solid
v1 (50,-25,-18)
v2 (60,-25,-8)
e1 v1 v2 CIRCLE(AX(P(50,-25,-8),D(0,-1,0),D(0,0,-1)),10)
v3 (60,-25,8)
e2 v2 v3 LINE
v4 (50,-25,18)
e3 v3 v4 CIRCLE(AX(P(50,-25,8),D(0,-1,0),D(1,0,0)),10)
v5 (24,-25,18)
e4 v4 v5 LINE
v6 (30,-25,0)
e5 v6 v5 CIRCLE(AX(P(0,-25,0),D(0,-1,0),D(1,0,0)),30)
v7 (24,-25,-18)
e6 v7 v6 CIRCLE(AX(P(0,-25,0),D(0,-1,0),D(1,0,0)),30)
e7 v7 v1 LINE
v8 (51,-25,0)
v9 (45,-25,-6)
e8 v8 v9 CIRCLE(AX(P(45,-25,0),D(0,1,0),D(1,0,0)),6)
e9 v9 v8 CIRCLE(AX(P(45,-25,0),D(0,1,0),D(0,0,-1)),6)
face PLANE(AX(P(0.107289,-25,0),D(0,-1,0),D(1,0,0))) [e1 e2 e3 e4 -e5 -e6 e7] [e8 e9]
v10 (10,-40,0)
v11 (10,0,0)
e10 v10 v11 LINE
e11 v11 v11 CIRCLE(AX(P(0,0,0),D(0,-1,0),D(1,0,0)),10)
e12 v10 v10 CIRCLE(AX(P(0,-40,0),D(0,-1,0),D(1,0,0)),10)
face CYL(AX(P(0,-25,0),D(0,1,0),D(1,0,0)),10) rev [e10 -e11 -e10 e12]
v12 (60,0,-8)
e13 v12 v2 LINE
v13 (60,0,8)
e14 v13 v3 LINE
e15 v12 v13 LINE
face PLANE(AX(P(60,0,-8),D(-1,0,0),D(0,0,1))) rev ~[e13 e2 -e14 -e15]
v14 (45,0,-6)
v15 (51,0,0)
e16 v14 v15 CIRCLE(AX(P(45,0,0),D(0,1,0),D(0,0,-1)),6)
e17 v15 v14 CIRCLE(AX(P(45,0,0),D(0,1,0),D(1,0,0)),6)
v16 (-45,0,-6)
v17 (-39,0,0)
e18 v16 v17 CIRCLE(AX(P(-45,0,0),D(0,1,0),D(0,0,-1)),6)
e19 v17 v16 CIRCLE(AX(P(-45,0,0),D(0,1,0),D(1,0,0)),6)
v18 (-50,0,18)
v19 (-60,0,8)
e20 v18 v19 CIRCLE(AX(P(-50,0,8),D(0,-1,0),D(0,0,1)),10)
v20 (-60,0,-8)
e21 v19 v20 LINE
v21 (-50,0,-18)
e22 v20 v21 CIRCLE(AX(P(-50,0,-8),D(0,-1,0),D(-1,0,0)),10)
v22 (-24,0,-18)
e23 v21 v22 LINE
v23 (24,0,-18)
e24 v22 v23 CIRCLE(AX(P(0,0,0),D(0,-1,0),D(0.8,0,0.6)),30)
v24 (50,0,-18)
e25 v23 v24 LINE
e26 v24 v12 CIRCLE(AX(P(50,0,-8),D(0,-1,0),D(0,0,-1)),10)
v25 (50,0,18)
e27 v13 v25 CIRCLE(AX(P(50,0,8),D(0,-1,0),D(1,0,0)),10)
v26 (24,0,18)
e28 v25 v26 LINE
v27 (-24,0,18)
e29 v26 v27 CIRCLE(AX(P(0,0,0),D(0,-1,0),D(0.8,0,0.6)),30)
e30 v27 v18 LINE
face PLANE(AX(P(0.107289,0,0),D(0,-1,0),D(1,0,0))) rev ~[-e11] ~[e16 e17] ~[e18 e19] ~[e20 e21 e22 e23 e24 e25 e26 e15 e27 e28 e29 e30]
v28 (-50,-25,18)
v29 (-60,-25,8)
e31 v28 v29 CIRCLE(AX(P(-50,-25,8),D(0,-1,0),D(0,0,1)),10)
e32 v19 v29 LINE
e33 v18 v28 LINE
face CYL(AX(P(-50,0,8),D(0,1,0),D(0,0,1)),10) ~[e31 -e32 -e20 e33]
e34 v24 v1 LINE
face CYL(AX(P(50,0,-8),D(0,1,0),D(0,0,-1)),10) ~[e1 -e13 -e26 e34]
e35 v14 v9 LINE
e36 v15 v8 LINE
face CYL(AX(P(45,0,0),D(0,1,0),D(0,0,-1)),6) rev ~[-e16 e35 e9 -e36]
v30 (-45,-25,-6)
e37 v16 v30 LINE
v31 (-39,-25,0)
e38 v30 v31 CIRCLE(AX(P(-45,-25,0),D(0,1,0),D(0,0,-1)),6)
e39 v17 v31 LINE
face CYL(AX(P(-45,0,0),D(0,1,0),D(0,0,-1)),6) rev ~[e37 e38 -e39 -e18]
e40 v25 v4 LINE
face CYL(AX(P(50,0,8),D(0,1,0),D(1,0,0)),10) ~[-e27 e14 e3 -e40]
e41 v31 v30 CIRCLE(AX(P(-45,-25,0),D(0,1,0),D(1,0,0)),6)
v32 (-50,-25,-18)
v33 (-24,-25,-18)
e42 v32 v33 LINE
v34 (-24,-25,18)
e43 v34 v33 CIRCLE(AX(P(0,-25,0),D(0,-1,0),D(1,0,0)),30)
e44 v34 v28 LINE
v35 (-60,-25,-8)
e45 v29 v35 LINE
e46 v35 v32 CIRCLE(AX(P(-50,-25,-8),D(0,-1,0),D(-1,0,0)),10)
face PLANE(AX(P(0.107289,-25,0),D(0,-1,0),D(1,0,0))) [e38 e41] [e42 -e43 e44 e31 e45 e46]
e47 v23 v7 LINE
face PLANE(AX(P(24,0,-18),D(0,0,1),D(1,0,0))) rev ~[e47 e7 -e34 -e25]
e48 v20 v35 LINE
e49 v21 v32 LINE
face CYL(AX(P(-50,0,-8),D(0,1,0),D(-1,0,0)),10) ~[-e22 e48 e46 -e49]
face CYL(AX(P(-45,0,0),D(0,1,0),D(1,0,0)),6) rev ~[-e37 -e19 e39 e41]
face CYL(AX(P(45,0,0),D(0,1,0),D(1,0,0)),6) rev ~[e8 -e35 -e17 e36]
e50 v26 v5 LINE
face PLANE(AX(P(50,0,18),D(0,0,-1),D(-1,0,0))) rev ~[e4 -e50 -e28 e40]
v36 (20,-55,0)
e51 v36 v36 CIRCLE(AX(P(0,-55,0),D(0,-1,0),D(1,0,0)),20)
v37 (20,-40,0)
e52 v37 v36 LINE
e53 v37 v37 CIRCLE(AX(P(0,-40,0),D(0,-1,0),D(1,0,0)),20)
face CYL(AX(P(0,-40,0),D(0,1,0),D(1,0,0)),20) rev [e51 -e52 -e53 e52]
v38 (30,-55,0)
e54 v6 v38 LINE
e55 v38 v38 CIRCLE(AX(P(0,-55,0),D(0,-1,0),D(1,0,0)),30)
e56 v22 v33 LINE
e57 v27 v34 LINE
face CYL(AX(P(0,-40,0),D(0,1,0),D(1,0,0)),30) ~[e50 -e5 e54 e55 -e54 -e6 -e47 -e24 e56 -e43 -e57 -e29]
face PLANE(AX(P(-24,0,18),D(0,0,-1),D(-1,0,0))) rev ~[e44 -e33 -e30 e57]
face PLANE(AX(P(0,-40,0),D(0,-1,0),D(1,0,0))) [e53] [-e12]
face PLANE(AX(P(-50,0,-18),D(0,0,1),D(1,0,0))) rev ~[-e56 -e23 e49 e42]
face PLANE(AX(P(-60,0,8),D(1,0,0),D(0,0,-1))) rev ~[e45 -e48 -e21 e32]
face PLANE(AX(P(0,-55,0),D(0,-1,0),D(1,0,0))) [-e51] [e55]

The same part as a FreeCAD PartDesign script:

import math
import FreeCAD as App
import Part
import Sketcher

V = App.Vector
Q = App.Units.Quantity

doc = App.newDocument("Part")
body = doc.addObject("PartDesign::Body", "Body")

sketch1 = body.newObject("Sketcher::SketchObject", "Sketch")
sketch1.AttachmentSupport = (doc.getObject("XZ_Plane"), [""])
sketch1.MapMode = "FlatFace"
sketch1.addGeometry([
    Part.LineSegment(V(24, -18, 0), V(50, -18, 0)),
    Part.ArcOfCircle(Part.Circle(V(50, -8, 0), V(0, 0, 1), 10), math.radians(-90), math.radians(0)),
    Part.LineSegment(V(60, -8, 0), V(60, 8, 0)),
    Part.ArcOfCircle(Part.Circle(V(50, 8, 0), V(0, 0, 1), 10), math.radians(0), math.radians(90)),
    Part.LineSegment(V(50, 18, 0), V(24, 18, 0)),
    Part.ArcOfCircle(Part.Circle(V(0, 0, 0), V(0, 0, 1), 30), math.radians(36.869898), math.radians(143.130102)),
    Part.LineSegment(V(-24, 18, 0), V(-50, 18, 0)),
    Part.ArcOfCircle(Part.Circle(V(-50, 8, 0), V(0, 0, 1), 10), math.radians(90), math.radians(180)),
    Part.LineSegment(V(-60, 8, 0), V(-60, -8, 0)),
    Part.ArcOfCircle(Part.Circle(V(-50, -8, 0), V(0, 0, 1), 10), math.radians(180), math.radians(270)),
    Part.LineSegment(V(-50, -18, 0), V(-24, -18, 0)),
    Part.ArcOfCircle(Part.Circle(V(0, 0, 0), V(0, 0, 1), 30), math.radians(-143.130102), math.radians(-36.869898)),
    Part.ArcOfCircle(Part.Circle(V(-45, 0, 0), V(0, 0, 1), 6), math.radians(0), math.radians(270)),
    Part.ArcOfCircle(Part.Circle(V(-45, 0, 0), V(0, 0, 1), 6), math.radians(-90), math.radians(0)),
    Part.ArcOfCircle(Part.Circle(V(45, 0, 0), V(0, 0, 1), 6), math.radians(0), math.radians(270)),
    Part.ArcOfCircle(Part.Circle(V(45, 0, 0), V(0, 0, 1), 6), math.radians(-90), math.radians(0)),
    Part.Circle(V(0, 0, 0), V(0, 0, 1), 10),
], False)
sketch1.addConstraint([
    Sketcher.Constraint("Tangent", 0, 2, 1, 1),
    Sketcher.Constraint("Tangent", 1, 2, 2, 1),
    Sketcher.Constraint("Tangent", 2, 2, 3, 1),
    Sketcher.Constraint("Tangent", 3, 2, 4, 1),
    Sketcher.Constraint("Coincident", 4, 2, 5, 1),
    Sketcher.Constraint("Coincident", 5, 2, 6, 1),
    Sketcher.Constraint("Tangent", 6, 2, 7, 1),
    Sketcher.Constraint("Tangent", 7, 2, 8, 1),
    Sketcher.Constraint("Tangent", 8, 2, 9, 1),
    Sketcher.Constraint("Tangent", 9, 2, 10, 1),
    Sketcher.Constraint("Coincident", 10, 2, 11, 1),
    Sketcher.Constraint("Coincident", 11, 2, 0, 1),
    Sketcher.Constraint("Tangent", 12, 1, 13, 2),
    Sketcher.Constraint("Coincident", 13, 1, 12, 2),
    Sketcher.Constraint("Tangent", 14, 1, 15, 2),
    Sketcher.Constraint("Coincident", 15, 1, 14, 2),
    Sketcher.Constraint("Horizontal", 0),
    Sketcher.Constraint("Vertical", 2),
    Sketcher.Constraint("Horizontal", 4),
    Sketcher.Constraint("Horizontal", 6),
    Sketcher.Constraint("Vertical", 8),
    Sketcher.Constraint("Horizontal", 10),
    Sketcher.Constraint("Coincident", 5, 3, -1, 1),
    Sketcher.Constraint("Coincident", 11, 3, -1, 1),
    Sketcher.Constraint("Coincident", 16, 3, -1, 1),
    Sketcher.Constraint("Equal", 1, 3),
    Sketcher.Constraint("Equal", 3, 7),
    Sketcher.Constraint("Equal", 7, 9),
    Sketcher.Constraint("Equal", 5, 11),
    Sketcher.Constraint("Equal", 13, 14),
    Sketcher.Constraint("Equal", 9, 16),
    Sketcher.Constraint("Symmetric", 1, 3, 7, 3, -1, 1),
    Sketcher.Constraint("Symmetric", 12, 3, 14, 3, -1, 1),
    Sketcher.Constraint("Symmetric", 13, 1, 15, 1, -2),
    Sketcher.Constraint("PointOnObject", 12, 1, -1),
    Sketcher.Constraint("PointOnObject", 14, 1, -1),
    Sketcher.Constraint("Horizontal", 3, 3, 7, 3),
    Sketcher.Constraint("Horizontal", 1, 3, 9, 3),
    Sketcher.Constraint("Vertical", 12, 3, 13, 1),
    Sketcher.Constraint("Diameter", 16, Q("20 mm")),
    Sketcher.Constraint("Radius", 5, Q("30 mm")),
    Sketcher.Constraint("Radius", 12, Q("6 mm")),
    Sketcher.Constraint("DistanceX", 0, 1, 0, 2, Q("26 mm")),
    Sketcher.Constraint("DistanceY", 2, 1, 2, 2, Q("16 mm")),
    Sketcher.Constraint("DistanceX", 12, 3, -1, 1, Q("45 mm")),
])
pad1 = body.newObject("PartDesign::Pad", "Pad")
pad1.Profile = sketch1
pad1.Length = 25

sketch2 = body.newObject("Sketcher::SketchObject", "Sketch001")
sketch2.AttachmentSupport = (doc.getObject("XZ_Plane"), [""])
sketch2.MapMode = "FlatFace"
sketch2.AttachmentOffset = App.Placement(V(0, 0, 25), App.Rotation())
sketch2.addGeometry([
    Part.Circle(V(0, 0, 0), V(0, 0, 1), 30),
    Part.Circle(V(0, 0, 0), V(0, 0, 1), 10),
], False)
sketch2.addConstraint([
    Sketcher.Constraint("Coincident", 0, 3, -1, 1),
    Sketcher.Constraint("Coincident", 1, 3, -1, 1),
    Sketcher.Constraint("Diameter", 0, Q("60 mm")),
    Sketcher.Constraint("Diameter", 1, Q("20 mm")),
])
pad2 = body.newObject("PartDesign::Pad", "Pad001")
pad2.Profile = sketch2
pad2.Length = 15

sketch3 = body.newObject("Sketcher::SketchObject", "Sketch002")
sketch3.AttachmentSupport = (doc.getObject("XZ_Plane"), [""])
sketch3.MapMode = "FlatFace"
sketch3.AttachmentOffset = App.Placement(V(0, 0, 40), App.Rotation())
sketch3.addGeometry([
    Part.Circle(V(0, 0, 0), V(0, 0, 1), 30),
    Part.Circle(V(0, 0, 0), V(0, 0, 1), 20),
], False)
sketch3.addConstraint([
    Sketcher.Constraint("Coincident", 0, 3, -1, 1),
    Sketcher.Constraint("Coincident", 1, 3, -1, 1),
    Sketcher.Constraint("Diameter", 0, Q("60 mm")),
    Sketcher.Constraint("Diameter", 1, Q("40 mm")),
])
pad3 = body.newObject("PartDesign::Pad", "Pad002")
pad3.Profile = sketch3
pad3.Length = 15

doc.recompute()
